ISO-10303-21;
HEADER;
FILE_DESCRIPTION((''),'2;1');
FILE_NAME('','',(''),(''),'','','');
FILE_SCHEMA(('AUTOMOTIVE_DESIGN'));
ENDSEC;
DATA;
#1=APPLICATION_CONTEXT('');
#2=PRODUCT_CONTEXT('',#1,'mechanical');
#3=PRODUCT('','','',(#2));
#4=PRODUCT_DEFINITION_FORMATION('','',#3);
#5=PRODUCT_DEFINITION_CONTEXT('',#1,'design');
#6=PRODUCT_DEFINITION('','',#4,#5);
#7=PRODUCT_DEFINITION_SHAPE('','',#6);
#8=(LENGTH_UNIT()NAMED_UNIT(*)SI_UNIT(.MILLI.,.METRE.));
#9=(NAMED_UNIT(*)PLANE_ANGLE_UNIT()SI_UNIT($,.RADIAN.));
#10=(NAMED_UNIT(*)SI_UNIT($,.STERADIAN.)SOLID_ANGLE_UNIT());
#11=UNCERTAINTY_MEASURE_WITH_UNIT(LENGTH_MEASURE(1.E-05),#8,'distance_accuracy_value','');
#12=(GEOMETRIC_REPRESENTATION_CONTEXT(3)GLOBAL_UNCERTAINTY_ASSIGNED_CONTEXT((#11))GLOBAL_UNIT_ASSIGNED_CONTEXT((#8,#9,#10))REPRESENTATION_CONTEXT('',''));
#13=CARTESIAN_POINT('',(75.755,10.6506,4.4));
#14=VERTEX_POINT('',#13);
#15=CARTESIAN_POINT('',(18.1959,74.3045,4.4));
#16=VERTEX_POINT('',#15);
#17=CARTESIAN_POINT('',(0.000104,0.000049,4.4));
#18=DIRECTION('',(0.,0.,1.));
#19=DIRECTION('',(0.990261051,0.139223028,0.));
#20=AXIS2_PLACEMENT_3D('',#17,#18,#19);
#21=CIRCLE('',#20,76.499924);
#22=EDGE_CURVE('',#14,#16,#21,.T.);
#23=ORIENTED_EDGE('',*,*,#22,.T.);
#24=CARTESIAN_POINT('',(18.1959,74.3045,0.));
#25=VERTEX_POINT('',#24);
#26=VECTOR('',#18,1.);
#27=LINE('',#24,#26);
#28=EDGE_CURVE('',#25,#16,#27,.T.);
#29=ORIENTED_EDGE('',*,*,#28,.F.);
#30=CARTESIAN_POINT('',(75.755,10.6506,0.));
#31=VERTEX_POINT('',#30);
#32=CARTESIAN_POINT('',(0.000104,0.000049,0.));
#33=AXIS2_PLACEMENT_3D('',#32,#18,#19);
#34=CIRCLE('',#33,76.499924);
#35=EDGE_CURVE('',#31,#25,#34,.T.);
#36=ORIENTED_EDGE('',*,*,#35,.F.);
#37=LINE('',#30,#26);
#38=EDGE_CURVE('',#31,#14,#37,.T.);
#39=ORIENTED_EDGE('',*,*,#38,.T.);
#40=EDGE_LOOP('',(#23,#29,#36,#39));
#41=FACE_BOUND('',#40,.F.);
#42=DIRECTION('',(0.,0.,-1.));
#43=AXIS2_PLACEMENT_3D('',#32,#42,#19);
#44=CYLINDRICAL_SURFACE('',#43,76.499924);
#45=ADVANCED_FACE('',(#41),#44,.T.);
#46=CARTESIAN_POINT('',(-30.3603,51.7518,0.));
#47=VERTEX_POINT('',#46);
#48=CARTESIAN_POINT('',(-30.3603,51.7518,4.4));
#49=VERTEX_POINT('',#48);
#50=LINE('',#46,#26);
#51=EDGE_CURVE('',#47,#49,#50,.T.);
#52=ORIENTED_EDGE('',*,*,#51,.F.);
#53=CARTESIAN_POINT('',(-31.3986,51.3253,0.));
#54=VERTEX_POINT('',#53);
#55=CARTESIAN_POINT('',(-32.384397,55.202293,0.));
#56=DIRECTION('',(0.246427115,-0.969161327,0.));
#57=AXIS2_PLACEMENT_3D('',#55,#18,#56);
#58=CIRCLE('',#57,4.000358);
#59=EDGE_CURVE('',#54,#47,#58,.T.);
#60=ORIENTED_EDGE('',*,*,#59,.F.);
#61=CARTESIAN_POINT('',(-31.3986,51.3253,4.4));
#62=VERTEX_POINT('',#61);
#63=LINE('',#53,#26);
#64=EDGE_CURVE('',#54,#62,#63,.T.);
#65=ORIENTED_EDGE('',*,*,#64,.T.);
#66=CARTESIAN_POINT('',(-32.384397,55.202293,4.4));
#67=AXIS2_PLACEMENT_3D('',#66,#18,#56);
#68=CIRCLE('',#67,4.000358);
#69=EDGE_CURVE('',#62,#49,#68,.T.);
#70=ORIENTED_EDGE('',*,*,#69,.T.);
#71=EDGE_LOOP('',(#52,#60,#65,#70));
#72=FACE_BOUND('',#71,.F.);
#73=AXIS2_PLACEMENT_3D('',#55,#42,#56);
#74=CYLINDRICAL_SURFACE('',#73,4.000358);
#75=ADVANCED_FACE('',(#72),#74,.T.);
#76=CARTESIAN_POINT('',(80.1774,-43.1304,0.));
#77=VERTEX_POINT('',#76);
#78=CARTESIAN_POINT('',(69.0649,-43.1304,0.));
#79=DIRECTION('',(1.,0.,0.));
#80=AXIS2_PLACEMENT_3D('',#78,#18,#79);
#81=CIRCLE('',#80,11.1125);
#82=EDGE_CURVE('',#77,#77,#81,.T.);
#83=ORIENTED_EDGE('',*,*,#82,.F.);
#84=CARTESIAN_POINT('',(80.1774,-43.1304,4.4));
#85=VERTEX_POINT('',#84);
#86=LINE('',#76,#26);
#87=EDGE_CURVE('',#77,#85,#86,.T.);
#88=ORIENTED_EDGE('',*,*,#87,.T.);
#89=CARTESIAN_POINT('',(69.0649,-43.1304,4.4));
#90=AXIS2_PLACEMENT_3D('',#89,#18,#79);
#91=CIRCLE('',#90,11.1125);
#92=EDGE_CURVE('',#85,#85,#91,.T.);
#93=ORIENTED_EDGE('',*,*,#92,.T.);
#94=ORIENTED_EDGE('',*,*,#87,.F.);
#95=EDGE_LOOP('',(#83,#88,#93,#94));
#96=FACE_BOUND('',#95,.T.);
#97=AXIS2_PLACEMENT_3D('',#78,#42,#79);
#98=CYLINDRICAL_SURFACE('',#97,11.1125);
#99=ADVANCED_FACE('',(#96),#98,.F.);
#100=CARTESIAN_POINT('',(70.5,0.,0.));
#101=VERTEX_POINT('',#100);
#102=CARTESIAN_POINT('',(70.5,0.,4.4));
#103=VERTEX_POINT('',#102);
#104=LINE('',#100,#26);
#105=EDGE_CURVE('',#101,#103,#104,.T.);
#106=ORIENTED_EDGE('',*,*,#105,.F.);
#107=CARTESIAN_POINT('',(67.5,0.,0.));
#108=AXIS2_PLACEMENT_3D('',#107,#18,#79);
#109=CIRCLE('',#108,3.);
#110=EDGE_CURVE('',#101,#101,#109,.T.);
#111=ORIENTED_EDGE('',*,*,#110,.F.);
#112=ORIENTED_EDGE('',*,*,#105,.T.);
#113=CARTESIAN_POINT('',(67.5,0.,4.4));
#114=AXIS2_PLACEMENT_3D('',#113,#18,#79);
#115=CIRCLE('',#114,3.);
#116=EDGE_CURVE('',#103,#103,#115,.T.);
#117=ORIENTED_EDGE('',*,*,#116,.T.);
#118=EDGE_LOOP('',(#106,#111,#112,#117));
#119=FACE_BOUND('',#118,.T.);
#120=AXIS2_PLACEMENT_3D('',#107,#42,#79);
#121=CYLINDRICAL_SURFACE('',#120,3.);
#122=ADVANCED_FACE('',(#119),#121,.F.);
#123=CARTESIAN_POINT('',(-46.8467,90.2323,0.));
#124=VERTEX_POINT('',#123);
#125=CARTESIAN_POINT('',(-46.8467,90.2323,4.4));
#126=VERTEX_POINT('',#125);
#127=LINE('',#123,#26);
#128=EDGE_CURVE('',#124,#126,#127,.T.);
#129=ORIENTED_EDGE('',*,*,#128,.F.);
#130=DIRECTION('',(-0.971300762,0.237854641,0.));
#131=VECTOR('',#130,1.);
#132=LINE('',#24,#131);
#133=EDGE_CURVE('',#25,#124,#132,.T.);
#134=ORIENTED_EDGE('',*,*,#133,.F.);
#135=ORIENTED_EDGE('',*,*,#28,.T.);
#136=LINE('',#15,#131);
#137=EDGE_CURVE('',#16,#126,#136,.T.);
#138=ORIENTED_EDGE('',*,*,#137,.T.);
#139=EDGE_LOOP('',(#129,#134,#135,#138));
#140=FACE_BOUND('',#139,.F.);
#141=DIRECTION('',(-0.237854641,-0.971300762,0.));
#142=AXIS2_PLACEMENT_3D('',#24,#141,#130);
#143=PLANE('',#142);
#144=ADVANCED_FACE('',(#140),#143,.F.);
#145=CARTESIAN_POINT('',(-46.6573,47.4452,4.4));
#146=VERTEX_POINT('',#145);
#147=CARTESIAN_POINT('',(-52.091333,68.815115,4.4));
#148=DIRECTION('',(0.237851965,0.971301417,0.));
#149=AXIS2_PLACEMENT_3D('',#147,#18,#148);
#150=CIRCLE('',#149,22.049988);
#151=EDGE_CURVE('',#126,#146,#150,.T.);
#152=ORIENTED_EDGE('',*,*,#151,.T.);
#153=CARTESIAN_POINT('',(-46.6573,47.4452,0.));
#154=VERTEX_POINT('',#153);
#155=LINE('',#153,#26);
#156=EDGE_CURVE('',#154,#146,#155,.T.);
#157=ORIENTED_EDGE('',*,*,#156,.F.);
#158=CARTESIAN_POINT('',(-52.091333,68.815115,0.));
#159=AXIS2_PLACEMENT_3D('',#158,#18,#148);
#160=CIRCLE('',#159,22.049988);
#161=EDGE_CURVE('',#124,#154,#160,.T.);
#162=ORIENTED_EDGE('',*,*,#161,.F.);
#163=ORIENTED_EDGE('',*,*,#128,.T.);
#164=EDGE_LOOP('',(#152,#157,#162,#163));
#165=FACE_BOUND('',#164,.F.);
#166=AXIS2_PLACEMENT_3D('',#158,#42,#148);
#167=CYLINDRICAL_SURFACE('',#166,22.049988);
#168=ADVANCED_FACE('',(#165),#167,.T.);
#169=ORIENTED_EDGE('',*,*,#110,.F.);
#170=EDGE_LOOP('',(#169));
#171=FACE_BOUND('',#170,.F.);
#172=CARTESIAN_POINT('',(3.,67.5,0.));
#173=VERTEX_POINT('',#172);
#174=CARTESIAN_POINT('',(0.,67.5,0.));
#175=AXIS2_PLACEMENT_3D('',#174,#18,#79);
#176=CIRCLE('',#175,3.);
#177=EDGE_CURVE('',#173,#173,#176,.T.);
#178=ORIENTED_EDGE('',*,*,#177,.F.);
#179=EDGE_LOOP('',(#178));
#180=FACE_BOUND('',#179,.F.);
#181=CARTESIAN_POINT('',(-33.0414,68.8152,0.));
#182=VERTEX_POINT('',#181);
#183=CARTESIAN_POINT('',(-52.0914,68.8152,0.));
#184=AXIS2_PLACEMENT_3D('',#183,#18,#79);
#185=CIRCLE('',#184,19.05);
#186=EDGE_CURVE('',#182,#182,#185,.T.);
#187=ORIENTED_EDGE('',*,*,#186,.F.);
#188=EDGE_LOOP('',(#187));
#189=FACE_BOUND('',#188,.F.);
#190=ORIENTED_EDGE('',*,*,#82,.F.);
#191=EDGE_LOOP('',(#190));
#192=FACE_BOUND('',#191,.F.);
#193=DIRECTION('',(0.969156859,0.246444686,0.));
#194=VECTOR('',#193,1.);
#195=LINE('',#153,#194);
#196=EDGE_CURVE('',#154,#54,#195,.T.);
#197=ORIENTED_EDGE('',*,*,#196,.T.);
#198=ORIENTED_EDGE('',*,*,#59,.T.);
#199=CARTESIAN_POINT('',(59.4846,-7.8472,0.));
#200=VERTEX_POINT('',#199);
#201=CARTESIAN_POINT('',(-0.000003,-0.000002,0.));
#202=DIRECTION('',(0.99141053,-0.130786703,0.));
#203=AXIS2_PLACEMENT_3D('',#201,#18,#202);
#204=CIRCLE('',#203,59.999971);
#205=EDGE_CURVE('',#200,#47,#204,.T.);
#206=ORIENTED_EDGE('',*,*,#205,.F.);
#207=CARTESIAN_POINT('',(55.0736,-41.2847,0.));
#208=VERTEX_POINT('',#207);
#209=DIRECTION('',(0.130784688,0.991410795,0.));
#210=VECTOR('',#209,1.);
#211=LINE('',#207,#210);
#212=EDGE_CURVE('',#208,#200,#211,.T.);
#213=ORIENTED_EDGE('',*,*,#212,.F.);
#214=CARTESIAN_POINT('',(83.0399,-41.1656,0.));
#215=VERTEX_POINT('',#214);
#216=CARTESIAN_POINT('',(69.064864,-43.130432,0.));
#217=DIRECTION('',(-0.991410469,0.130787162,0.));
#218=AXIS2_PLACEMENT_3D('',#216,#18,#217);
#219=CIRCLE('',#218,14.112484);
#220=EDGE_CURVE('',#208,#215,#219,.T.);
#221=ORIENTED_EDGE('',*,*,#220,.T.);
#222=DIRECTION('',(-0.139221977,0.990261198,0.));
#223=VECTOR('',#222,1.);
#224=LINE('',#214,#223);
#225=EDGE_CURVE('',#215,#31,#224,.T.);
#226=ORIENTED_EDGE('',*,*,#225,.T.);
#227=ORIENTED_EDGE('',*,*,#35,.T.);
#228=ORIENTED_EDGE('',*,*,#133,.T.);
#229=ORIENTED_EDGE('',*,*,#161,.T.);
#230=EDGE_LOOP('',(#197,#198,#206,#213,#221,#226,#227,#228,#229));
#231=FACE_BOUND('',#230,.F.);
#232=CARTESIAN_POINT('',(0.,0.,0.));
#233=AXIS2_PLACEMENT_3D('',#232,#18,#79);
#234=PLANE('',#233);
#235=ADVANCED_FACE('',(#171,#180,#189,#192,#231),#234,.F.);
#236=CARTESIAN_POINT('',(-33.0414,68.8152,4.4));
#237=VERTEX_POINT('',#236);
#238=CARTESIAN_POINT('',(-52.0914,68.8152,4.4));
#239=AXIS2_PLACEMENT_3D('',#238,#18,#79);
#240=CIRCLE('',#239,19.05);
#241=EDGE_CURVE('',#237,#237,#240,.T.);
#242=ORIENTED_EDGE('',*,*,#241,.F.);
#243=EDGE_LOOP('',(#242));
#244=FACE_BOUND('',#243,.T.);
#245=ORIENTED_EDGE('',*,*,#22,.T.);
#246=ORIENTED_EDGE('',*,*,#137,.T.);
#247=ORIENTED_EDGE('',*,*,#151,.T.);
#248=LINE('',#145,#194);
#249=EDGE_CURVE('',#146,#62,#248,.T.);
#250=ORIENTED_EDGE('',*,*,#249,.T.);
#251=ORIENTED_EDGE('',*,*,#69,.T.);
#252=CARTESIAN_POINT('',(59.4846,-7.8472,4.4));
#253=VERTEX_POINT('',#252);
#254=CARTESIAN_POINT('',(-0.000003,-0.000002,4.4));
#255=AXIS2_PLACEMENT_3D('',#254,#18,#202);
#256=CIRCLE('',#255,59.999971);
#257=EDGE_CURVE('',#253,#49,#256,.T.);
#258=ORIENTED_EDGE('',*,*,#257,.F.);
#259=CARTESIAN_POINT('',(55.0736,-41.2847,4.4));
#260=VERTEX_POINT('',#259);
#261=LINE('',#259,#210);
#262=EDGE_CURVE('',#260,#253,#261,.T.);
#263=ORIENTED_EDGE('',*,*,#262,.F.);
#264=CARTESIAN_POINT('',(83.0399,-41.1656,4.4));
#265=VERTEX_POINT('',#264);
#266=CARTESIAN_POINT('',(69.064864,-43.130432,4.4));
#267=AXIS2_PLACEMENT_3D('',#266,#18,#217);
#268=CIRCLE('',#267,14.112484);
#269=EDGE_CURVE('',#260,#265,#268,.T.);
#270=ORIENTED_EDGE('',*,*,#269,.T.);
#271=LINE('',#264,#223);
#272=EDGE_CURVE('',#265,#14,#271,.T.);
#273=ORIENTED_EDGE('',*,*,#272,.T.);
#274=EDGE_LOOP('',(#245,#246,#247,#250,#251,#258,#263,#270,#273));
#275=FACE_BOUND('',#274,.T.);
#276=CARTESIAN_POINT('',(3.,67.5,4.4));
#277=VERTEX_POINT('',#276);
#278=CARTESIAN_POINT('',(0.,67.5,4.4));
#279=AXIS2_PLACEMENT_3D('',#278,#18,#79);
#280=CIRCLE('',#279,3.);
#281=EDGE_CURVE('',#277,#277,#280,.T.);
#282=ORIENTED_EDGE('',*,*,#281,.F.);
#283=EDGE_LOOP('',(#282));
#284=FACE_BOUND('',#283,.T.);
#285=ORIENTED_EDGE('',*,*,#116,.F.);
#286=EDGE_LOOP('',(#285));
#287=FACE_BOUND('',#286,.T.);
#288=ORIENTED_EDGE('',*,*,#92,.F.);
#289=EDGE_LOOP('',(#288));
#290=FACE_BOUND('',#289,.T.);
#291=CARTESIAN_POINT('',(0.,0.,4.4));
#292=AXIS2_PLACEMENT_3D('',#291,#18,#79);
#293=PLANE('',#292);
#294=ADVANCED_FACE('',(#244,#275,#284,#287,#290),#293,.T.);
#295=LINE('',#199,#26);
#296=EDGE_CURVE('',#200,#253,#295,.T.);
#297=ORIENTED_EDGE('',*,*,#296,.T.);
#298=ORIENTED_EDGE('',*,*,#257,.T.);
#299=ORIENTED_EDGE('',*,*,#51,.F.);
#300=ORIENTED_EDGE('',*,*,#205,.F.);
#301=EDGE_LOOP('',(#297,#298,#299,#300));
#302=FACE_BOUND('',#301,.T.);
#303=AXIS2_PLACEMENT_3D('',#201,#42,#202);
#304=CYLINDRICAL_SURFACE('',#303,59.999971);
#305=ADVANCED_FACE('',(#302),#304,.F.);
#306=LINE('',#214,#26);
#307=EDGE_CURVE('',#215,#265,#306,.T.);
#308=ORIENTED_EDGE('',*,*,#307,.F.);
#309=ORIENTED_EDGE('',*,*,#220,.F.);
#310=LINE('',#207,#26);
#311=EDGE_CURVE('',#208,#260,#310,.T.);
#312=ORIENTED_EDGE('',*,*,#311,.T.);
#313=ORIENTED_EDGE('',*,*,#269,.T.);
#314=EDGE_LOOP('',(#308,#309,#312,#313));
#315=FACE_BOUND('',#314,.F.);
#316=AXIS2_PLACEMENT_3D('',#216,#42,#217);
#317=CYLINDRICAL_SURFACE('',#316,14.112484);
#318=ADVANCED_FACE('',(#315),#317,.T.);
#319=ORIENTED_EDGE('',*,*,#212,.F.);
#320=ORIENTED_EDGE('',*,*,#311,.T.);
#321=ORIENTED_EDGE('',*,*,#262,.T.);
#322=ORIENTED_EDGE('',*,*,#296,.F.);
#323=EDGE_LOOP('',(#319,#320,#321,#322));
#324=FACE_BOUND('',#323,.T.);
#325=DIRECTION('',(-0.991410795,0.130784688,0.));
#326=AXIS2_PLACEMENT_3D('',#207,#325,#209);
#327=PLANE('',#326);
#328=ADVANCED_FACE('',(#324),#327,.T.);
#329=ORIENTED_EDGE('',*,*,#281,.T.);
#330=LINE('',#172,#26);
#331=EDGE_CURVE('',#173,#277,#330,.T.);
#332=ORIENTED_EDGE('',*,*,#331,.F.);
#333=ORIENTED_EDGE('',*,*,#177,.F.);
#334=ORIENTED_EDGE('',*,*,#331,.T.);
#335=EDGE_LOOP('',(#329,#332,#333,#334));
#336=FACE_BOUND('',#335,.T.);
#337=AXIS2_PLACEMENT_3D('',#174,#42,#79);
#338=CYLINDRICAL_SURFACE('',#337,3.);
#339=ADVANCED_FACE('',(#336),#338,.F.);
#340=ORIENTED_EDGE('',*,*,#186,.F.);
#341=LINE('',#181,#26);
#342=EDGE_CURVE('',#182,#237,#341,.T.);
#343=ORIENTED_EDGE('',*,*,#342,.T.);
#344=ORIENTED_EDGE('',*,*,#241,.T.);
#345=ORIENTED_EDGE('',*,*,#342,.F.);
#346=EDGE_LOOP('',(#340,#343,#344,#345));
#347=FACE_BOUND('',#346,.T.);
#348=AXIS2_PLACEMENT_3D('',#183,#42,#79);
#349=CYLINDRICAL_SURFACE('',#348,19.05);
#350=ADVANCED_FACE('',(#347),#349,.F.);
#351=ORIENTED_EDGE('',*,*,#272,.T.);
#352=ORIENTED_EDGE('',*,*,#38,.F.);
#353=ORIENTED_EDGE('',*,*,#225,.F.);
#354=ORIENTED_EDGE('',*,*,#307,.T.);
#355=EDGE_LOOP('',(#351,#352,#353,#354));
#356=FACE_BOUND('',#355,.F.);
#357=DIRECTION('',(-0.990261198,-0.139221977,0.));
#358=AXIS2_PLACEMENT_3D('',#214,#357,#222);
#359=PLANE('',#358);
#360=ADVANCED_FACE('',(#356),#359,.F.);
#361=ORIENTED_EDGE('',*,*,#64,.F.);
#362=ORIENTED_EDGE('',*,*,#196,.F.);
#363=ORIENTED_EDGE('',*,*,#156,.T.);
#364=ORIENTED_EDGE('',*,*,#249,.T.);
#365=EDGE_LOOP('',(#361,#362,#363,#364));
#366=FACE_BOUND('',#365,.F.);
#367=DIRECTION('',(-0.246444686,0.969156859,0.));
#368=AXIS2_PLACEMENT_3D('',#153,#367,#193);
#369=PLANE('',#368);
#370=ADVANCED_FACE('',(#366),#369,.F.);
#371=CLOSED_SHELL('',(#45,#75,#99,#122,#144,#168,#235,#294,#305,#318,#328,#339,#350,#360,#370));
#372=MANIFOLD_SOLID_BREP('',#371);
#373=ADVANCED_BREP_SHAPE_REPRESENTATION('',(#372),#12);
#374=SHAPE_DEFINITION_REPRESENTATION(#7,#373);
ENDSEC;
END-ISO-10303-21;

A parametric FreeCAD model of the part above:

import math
import FreeCAD as App
import Part
import Sketcher
Q = App.Units.Quantity

doc = App.newDocument("Part")
params = doc.addObject("Spreadsheet::Sheet", "Params")
for row, (alias, value) in enumerate([
    ("sketch1_diameter", "6 mm"),
    ("sketch1_radius", "4 mm"),
    ("sketch1_radius2", "60 mm"),
    ("sketch1_diameter2", "38.1 mm"),
    ("sketch1_radius3", "76.5 mm"),
    ("pad1_length", "4.4 mm"),
], start=1):
    params.set(f"A{row}", alias)
    params.set(f"B{row}", "=" + value)
    params.setAlias(f"B{row}", alias)

body = doc.addObject("PartDesign::Body", "Body")

# Sketch on XY plane
sketch1 = body.newObject("Sketcher::SketchObject", "Sketch")
sketch1.AttachmentSupport = (doc.getObject("XY_Plane"), [""])
sketch1.MapMode = "FlatFace"
sketch1.addGeometry([
    Part.LineSegment(App.Vector(59.5, -7.8, 0), App.Vector(55.1, -41.3, 0)),  # 0
    Part.ArcOfCircle(Part.Circle(App.Vector(69.1, -43.1, 0), App.Vector(0, 0, 1), 14.1), math.radians(172), math.radians(368)),  # 1
    Part.LineSegment(App.Vector(83, -41.2, 0), App.Vector(75.8, 10.7, 0)),  # 2
    Part.ArcOfCircle(Part.Circle(App.Vector(0, 0, 0), App.Vector(0, 0, 1), 76.5), math.radians(8), math.radians(76)),  # 3
    Part.LineSegment(App.Vector(18.2, 74.3, 0), App.Vector(-46.8, 90.2, 0)),  # 4
    Part.ArcOfCircle(Part.Circle(App.Vector(-52.1, 68.8, 0), App.Vector(0, 0, 1), 22), math.radians(76), math.radians(284)),  # 5
    Part.LineSegment(App.Vector(-46.7, 47.4, 0), App.Vector(-31.4, 51.3, 0)),  # 6
    Part.ArcOfCircle(Part.Circle(App.Vector(-32.4, 55.2, 0), App.Vector(0, 0, 1), 4), math.radians(-75.73), math.radians(-59.6)),  # 7
    Part.ArcOfCircle(Part.Circle(App.Vector(0, 0, 0), App.Vector(0, 0, 1), 60), math.radians(-8), math.radians(120)),  # 8
    Part.Circle(App.Vector(69.1, -43.1, 0), App.Vector(0, 0, 1), 11.1),  # 9
    Part.Circle(App.Vector(67.5, 0, 0), App.Vector(0, 0, 1), 3),  # 10
    Part.Circle(App.Vector(-52.1, 68.8, 0), App.Vector(0, 0, 1), 19.1),  # 11
    Part.Circle(App.Vector(0, 67.5, 0), App.Vector(0, 0, 1), 3),  # 12
], False)
sketch1.addConstraint([
    Sketcher.Constraint("Tangent", 0, 2, 1, 1),
    Sketcher.Constraint("Tangent", 1, 2, 2, 1),
    Sketcher.Constraint("Tangent", 2, 2, 3, 1),
    Sketcher.Constraint("Tangent", 3, 2, 4, 1),
    Sketcher.Constraint("Tangent", 4, 2, 5, 1),
    Sketcher.Constraint("Tangent", 5, 2, 6, 1),
    Sketcher.Constraint("Tangent", 6, 2, 7, 1),
    Sketcher.Constraint("Tangent", 7, 2, 8, 2),
    Sketcher.Constraint("Tangent", 8, 1, 0, 1),
    Sketcher.Constraint("Coincident", 3, 3, -1, 1),
    Sketcher.Constraint("Coincident", 8, 3, -1, 1),
    Sketcher.Constraint("Coincident", 9, 3, 1, 3),
    Sketcher.Constraint("Coincident", 11, 3, 5, 3),
    Sketcher.Constraint("Equal", 10, 12),
    Sketcher.Constraint("PointOnObject", 10, 3, -1),
    Sketcher.Constraint("PointOnObject", 12, 3, -2),
    Sketcher.Constraint("Diameter", 10, Q("6 mm")),
    Sketcher.Constraint("Radius", 7, Q("4 mm")),
    Sketcher.Constraint("Radius", 8, Q("60 mm")),
    Sketcher.Constraint("Diameter", 11, Q("38.1 mm")),
    Sketcher.Constraint("Radius", 3, Q("76.5 mm")),
    Sketcher.Constraint("Radius", 5, Q("22.05 mm")),
    Sketcher.Constraint("Diameter", 9, Q("22.225 mm")),
    Sketcher.Constraint("DistanceX", -1, 1, 10, 3, Q("67.5 mm")),
    Sketcher.Constraint("DistanceY", -1, 1, 12, 3, Q("67.5 mm")),
    Sketcher.Constraint("Angle", 4, Q("166.24 deg")),
    Sketcher.Constraint("Radius", 1, Q("14.1125 mm")),
    Sketcher.Constraint("DistanceX", -1, 1, 1, 2, Q("83.04 mm")),
    Sketcher.Constraint("DistanceX", 1, 3, 2, 2, Q("6.69 mm")),
    Sketcher.Constraint("DistanceY", 5, 2, 6, 2, Q("3.88 mm")),
    Sketcher.Constraint("DistanceY", 6, 2, 5, 3, Q("17.49 mm")),
])
sketch1.setExpression("Constraints[16]", "Params.sketch1_diameter")
sketch1.setExpression("Constraints[17]", "Params.sketch1_radius")
sketch1.setExpression("Constraints[18]", "Params.sketch1_radius2")
sketch1.setExpression("Constraints[19]", "Params.sketch1_diameter2")
sketch1.setExpression("Constraints[20]", "Params.sketch1_radius3")
pad1 = body.newObject("PartDesign::Pad", "Pad")
pad1.Profile = sketch1
pad1.setExpression("Length", "Params.pad1_length")

doc.recompute()
